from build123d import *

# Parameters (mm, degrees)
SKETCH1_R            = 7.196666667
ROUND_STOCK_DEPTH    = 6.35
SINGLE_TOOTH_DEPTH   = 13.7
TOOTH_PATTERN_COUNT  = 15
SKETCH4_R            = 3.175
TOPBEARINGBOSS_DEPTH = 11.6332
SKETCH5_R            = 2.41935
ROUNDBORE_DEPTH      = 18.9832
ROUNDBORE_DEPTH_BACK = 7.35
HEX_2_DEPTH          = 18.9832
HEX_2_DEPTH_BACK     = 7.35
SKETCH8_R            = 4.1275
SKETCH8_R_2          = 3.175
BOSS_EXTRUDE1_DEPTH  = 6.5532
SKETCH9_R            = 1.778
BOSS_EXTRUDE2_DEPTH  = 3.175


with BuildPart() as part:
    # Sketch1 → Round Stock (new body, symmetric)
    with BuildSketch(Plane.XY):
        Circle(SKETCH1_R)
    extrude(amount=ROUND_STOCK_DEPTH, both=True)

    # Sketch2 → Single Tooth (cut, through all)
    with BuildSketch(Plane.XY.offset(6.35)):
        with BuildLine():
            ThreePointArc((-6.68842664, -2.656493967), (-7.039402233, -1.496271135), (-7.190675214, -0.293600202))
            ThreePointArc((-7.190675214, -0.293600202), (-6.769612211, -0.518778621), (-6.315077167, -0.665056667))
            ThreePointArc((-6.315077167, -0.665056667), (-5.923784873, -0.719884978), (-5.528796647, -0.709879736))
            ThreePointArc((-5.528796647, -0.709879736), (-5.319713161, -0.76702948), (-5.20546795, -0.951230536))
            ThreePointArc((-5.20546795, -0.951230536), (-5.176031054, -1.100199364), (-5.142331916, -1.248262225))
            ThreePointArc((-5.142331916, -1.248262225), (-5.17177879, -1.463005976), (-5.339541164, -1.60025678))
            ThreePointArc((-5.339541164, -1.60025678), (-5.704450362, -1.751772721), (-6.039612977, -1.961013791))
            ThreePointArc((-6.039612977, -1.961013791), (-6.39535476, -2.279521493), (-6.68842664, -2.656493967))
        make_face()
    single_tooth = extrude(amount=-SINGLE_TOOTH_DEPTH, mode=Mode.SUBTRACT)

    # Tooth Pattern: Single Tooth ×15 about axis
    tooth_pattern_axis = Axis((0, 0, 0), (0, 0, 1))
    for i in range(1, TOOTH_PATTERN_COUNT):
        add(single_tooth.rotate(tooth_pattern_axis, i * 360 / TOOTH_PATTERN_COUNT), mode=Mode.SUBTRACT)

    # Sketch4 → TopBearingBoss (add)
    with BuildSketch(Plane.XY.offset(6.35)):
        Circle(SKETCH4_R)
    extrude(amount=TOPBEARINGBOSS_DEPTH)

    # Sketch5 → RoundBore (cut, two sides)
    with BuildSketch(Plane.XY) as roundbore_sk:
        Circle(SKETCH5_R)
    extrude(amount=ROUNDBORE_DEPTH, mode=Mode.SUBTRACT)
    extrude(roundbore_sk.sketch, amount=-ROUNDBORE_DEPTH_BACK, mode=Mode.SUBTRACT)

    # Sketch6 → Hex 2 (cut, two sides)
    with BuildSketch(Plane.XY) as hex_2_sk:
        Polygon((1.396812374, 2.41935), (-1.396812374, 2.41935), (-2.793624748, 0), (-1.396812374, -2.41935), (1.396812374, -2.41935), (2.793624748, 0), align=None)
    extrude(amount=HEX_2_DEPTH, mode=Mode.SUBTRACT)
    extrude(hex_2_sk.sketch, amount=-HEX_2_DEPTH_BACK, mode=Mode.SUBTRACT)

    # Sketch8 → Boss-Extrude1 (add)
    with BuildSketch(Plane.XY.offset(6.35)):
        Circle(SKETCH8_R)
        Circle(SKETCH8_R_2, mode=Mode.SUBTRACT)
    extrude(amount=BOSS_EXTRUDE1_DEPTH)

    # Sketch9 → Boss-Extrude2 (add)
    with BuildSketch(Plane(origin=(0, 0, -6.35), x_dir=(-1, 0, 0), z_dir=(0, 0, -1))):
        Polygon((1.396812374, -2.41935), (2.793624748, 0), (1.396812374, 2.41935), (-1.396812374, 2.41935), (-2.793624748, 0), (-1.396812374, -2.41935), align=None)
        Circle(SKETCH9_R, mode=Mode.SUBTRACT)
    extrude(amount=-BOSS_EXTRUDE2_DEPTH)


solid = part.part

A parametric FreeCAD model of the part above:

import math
import FreeCAD as App
import Part
import Sketcher

V = App.Vector
Q = App.Units.Quantity

doc = App.newDocument("Part")
body = doc.addObject("PartDesign::Body", "Body")

# Sketch on XY plane
sketch1 = doc.addObject("Sketcher::SketchObject", "Sketch")
body.addObject(sketch1)
sketch1.AttachmentSupport = (doc.XY_Plane, [""])
sketch1.MapMode = "FlatFace"
sketch1.addGeometry(Part.Circle(V(0, 0, 0), V(0, 0, 1), 7), False)
sketch1.addConstraint([
    Sketcher.Constraint("Coincident", 0, 3, -1, 1),
    Sketcher.Constraint("Diameter", 0, 14.393333),
])
pad1 = doc.addObject("PartDesign::Pad", "Pad")
body.addObject(pad1)
pad1.Profile = sketch1
pad1.Length = Q("0.5 in")
pad1.Midplane = True

# Sketch on XY plane
sketch2 = doc.addObject("Sketcher::SketchObject", "Sketch001")
body.addObject(sketch2)
sketch2.AttachmentSupport = (doc.XY_Plane, [""])
sketch2.MapMode = "FlatFace"
sketch2.AttachmentOffset = App.Placement(V(0, 0, 0.25 * 25.4), App.Rotation())
sketch2.addGeometry([
    Part.ArcOfCircle(Part.Circle(V(0, 0, 0), V(0, 0, 1), 7.2), math.radians(-177.66), math.radians(-158.34)),  # 0
    Part.ArcOfCircle(Part.Circle(V(-4.45, -4.09, 0), V(0, 0, 1), 2.66), math.radians(127), math.radians(147)),  # 1
    Part.ArcOfCircle(Part.Circle(V(-4.6, -3.89, 0), V(0, 0, 1), 2.4), math.radians(107.84), math.radians(126.69)),  # 2
    Part.ArcOfCircle(Part.Circle(V(-5.43, -1.32, 0), V(0, 0, 1), 0.3), math.radians(-72), math.radians(14)),  # 3
    Part.ArcOfCircle(Part.Circle(V(0, 0, 0), V(0, 0, 1), 5.29), math.radians(-169.64), math.radians(-166.36)),  # 4
    Part.ArcOfCircle(Part.Circle(V(-5.5, -1, 0), V(0, 0, 1), 0.3), math.radians(10), math.radians(96)),  # 5
    Part.ArcOfCircle(Part.Circle(V(-5.79, 1.68, 0), V(0, 0, 1), 2.4), math.radians(-102.69), math.radians(-83.84)),  # 6
    Part.ArcOfCircle(Part.Circle(V(-5.73, 1.93, 0), V(0, 0, 1), 2.66), math.radians(-123), math.radians(-103)),  # 7
], False)
sketch2.addConstraint([
    Sketcher.Constraint("Coincident", 0, 2, 1, 2),
    Sketcher.Constraint("Tangent", 1, 1, 2, 2),
    Sketcher.Constraint("Tangent", 2, 1, 3, 1),
    Sketcher.Constraint("Tangent", 3, 2, 4, 2),
    Sketcher.Constraint("Tangent", 4, 1, 5, 1),
    Sketcher.Constraint("Tangent", 5, 2, 6, 2),
    Sketcher.Constraint("Tangent", 6, 1, 7, 2),
    Sketcher.Constraint("Coincident", 7, 1, 0, 1),
    Sketcher.Constraint("Coincident", 0, 3, -1, 1),
    Sketcher.Constraint("Coincident", 4, 3, -1, 1),
    Sketcher.Constraint("Equal", 3, 5),
    Sketcher.Constraint("Equal", 2, 6),
    Sketcher.Constraint("Equal", 1, 7),
    Sketcher.Constraint("Radius", 0, 7.196667),
    Sketcher.Constraint("Radius", 1, 2.660227),
    Sketcher.Constraint("Radius", 2, 2.404045),
    Sketcher.Constraint("Radius", 3, 0.296333),
    Sketcher.Constraint("Radius", 4, 5.291667),
    Sketcher.Constraint("DistanceY", 5, 3, -1, 1, 1.004499),
    Sketcher.Constraint("DistanceY", 7, 1, -1, 1, 0.2936),
    Sketcher.Constraint("DistanceY", 2, 3, 3, 3, 2.570601),
    Sketcher.Constraint("DistanceX", 6, 3, 1, 3, 1.336799),
    Sketcher.Constraint("DistanceX", 0, 2, 2, 3, 2.085199),
    Sketcher.Constraint("DistanceY", 1, 3, 0, 2, 1.437699),
])
pocket1 = doc.addObject("PartDesign::Pocket", "Pocket")
body.addObject(pocket1)
pocket1.Profile = sketch2
pocket1.Type = "ThroughAll"
doc.recompute()

polarpattern = doc.addObject("PartDesign::PolarPattern", "PolarPattern")
body.addObject(polarpattern)
polarpattern.Originals = [pocket1]
polarpattern.Axis = (doc.Z_Axis, [""])
polarpattern.Angle = 360
polarpattern.Occurrences = 15
body.Tip = polarpattern

# Sketch on XY plane
sketch3 = doc.addObject("Sketcher::SketchObject", "Sketch002")
body.addObject(sketch3)
sketch3.AttachmentSupport = (doc.XY_Plane, [""])
sketch3.MapMode = "FlatFace"
sketch3.AttachmentOffset = App.Placement(V(0, 0, 0.25 * 25.4), App.Rotation())
sketch3.addGeometry(Part.Circle(V(0, 0, 0), V(0, 0, 1), 3.2), False)
sketch3.addConstraint([
    Sketcher.Constraint("Coincident", 0, 3, -1, 1),
    Sketcher.Constraint("Diameter", 0, Q("0.25 in")),
])
pad2 = doc.addObject("PartDesign::Pad", "Pad001")
body.addObject(pad2)
pad2.Profile = sketch3
pad2.Length = Q("0.458 in")

# Sketch on XY plane
sketch4 = doc.addObject("Sketcher::SketchObject", "Sketch003")
body.addObject(sketch4)
sketch4.AttachmentSupport = (doc.XY_Plane, [""])
sketch4.MapMode = "FlatFace"
sketch4.addGeometry(Part.Circle(V(0, 0, 0), V(0, 0, 1), 2.4), False)
sketch4.addConstraint([
    Sketcher.Constraint("Coincident", 0, 3, -1, 1),
    Sketcher.Constraint("Diameter", 0, Q("0.1905 in")),
])
pocket2 = doc.addObject("PartDesign::Pocket", "Pocket001")
body.addObject(pocket2)
pocket2.Profile = sketch4
pocket2.Type = "ThroughAll"
pocket2.Midplane = True

# Sketch on XY plane
sketch5 = doc.addObject("Sketcher::SketchObject", "Sketch004")
body.addObject(sketch5)
sketch5.AttachmentSupport = (doc.XY_Plane, [""])
sketch5.MapMode = "FlatFace"
sketch5.addGeometry([
    Part.LineSegment(V(1.4, 2.4, 0), V(-1.4, 2.4, 0)),  # 0
    Part.LineSegment(V(-1.4, 2.4, 0), V(-2.8, 0, 0)),  # 1
    Part.LineSegment(V(-2.8, 0, 0), V(-1.4, -2.4, 0)),  # 2
    Part.LineSegment(V(-1.4, -2.4, 0), V(1.4, -2.4, 0)),  # 3
    Part.LineSegment(V(1.4, -2.4, 0), V(2.8, 0, 0)),  # 4
    Part.LineSegment(V(2.8, 0, 0), V(1.4, 2.4, 0)),  # 5
], False)
sketch5.addConstraint([
    Sketcher.Constraint("Coincident", 0, 2, 1, 1),
    Sketcher.Constraint("Coincident", 1, 2, 2, 1),
    Sketcher.Constraint("Coincident", 2, 2, 3, 1),
    Sketcher.Constraint("Coincident", 3, 2, 4, 1),
    Sketcher.Constraint("Coincident", 4, 2, 5, 1),
    Sketcher.Constraint("Coincident", 5, 2, 0, 1),
    Sketcher.Constraint("Horizontal", 0),
    Sketcher.Constraint("Horizontal", 3),
    Sketcher.Constraint("Symmetric", 0, 2, 3, 2, -1, 1),
    Sketcher.Constraint("Symmetric", 1, 2, 4, 2, -1, 1),
    Sketcher.Constraint("PointOnObject", 1, 2, -1),
    Sketcher.Constraint("Parallel", 2, 5),
    Sketcher.Constraint("Vertical", 0, 2, 2, 2),
    Sketcher.Constraint("Angle", 1, Q("-120 deg")),
    Sketcher.Constraint("DistanceY", 2, 2, 0, 2, Q("0.1905 in")),
    Sketcher.Constraint("DistanceX", 0, 2, 0, 1, 2.793625),
])
pocket3 = doc.addObject("PartDesign::Pocket", "Pocket002")
body.addObject(pocket3)
pocket3.Profile = sketch5
pocket3.Type = "ThroughAll"
pocket3.Midplane = True

# Sketch on XY plane
sketch6 = doc.addObject("Sketcher::SketchObject", "Sketch005")
body.addObject(sketch6)
sketch6.AttachmentSupport = (doc.XY_Plane, [""])
sketch6.MapMode = "FlatFace"
sketch6.AttachmentOffset = App.Placement(V(0, 0, 0.25 * 25.4), App.Rotation())
sketch6.addGeometry([
    Part.Circle(V(0, 0, 0), V(0, 0, 1), 4.1),
    Part.Circle(V(0, 0, 0), V(0, 0, 1), 3.2),
], False)
sketch6.addConstraint([
    Sketcher.Constraint("Coincident", 0, 3, -1, 1),
    Sketcher.Constraint("Coincident", 1, 3, -1, 1),
    Sketcher.Constraint("Diameter", 1, Q("0.25 in")),
    Sketcher.Constraint("Diameter", 0, Q("0.325 in")),
])
pad3 = doc.addObject("PartDesign::Pad", "Pad002")
body.addObject(pad3)
pad3.Profile = sketch6
pad3.Length = Q("0.258 in")

# Sketch on XY plane
sketch7 = doc.addObject("Sketcher::SketchObject", "Sketch006")
body.addObject(sketch7)
sketch7.AttachmentSupport = (doc.XY_Plane, [""])
sketch7.MapMode = "FlatFace"
sketch7.AttachmentOffset = App.Placement(V(0, 0, -0.25 * 25.4), App.Rotation())
sketch7.addGeometry([
    Part.LineSegment(V(-1.4, -2.4, 0), V(-2.8, 0, 0)),  # 0
    Part.LineSegment(V(-2.8, 0, 0), V(-1.4, 2.4, 0)),  # 1
    Part.LineSegment(V(-1.4, 2.4, 0), V(1.4, 2.4, 0)),  # 2
    Part.LineSegment(V(1.4, 2.4, 0), V(2.8, 0, 0)),  # 3
    Part.LineSegment(V(2.8, 0, 0), V(1.4, -2.4, 0)),  # 4
    Part.LineSegment(V(1.4, -2.4, 0), V(-1.4, -2.4, 0)),  # 5
    Part.Circle(V(0, 0, 0), V(0, 0, 1), 1.8),  # 6
], False)
sketch7.addConstraint([
    Sketcher.Constraint("Coincident", 0, 2, 1, 1),
    Sketcher.Constraint("Coincident", 1, 2, 2, 1),
    Sketcher.Constraint("Coincident", 2, 2, 3, 1),
    Sketcher.Constraint("Coincident", 3, 2, 4, 1),
    Sketcher.Constraint("Coincident", 4, 2, 5, 1),
    Sketcher.Constraint("Coincident", 5, 2, 0, 1),
    Sketcher.Constraint("Horizontal", 2),
    Sketcher.Constraint("Horizontal", 5),
    Sketcher.Constraint("Coincident", 6, 3, -1, 1),
    Sketcher.Constraint("Symmetric", 0, 2, 3, 2, -1, 1),
    Sketcher.Constraint("Symmetric", 1, 2, 4, 2, -1, 1),
    Sketcher.Constraint("PointOnObject", 0, 2, -1),
    Sketcher.Constraint("Parallel", 0, 3),
    Sketcher.Constraint("Vertical", 2, 2, 4, 2),
    Sketcher.Constraint("Diameter", 6, Q("0.14 in")),
    Sketcher.Constraint("Angle", 0, Q("120 deg")),
    Sketcher.Constraint("DistanceY", 4, 2, 2, 2, Q("0.1905 in")),
    Sketcher.Constraint("DistanceX", 2, 1, 2, 2, 2.793625),
])
pad4 = doc.addObject("PartDesign::Pad", "Pad003")
body.addObject(pad4)
pad4.Profile = sketch7
pad4.Length = Q("0.125 in")

doc.recompute()
